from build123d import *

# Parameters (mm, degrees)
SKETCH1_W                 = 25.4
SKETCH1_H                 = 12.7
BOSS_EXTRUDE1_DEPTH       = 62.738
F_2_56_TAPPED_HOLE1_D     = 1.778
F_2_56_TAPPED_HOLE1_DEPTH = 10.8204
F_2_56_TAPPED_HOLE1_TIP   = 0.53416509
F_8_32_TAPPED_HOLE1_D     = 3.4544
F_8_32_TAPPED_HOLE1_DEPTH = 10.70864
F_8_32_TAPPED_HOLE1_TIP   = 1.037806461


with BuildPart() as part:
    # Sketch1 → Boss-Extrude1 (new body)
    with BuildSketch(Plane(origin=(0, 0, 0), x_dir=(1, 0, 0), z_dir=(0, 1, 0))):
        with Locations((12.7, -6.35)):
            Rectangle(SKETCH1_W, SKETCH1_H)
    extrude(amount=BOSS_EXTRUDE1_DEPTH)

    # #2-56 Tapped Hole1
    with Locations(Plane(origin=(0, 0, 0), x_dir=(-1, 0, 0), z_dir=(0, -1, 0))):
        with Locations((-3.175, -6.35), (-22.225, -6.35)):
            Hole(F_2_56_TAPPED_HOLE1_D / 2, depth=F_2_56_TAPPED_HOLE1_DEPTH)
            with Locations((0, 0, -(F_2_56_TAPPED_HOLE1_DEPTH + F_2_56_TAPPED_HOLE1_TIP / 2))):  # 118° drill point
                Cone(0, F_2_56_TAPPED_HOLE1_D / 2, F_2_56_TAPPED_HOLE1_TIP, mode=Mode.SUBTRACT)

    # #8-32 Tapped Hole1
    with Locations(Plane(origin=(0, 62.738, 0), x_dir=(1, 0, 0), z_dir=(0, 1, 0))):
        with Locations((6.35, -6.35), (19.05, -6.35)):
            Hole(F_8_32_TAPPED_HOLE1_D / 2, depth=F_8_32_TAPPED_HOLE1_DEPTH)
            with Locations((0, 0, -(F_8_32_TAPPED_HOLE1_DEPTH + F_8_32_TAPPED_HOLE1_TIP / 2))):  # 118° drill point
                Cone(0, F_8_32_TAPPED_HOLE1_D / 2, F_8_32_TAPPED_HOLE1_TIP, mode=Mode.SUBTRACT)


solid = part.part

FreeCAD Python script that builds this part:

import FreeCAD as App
import Part
import Sketcher

V = App.Vector
Q = App.Units.Quantity


def add_polygon(sketch, points):
    """Adds a closed chain of lines whose ends are joined by coincident constraints."""
    first, n = sketch.GeometryCount, len(points)
    for a, b in zip(points, points[1:] + points[:1]):
        sketch.addGeometry(Part.LineSegment(App.Vector(*a, 0), App.Vector(*b, 0)), False)
    for i in range(n):
        sketch.addConstraint(Sketcher.Constraint("Coincident", first + i, 2, first + (i + 1) % n, 1))

doc = App.newDocument("Part")
body = doc.addObject("PartDesign::Body", "Body")

# Sketch on XZ plane
sketch1 = body.newObject("Sketcher::SketchObject", "Sketch")
sketch1.AttachmentSupport = (doc.getObject("XZ_Plane"), [""])
sketch1.MapMode = "FlatFace"
add_polygon(sketch1, [(0, 0), (0, 13), (25, 13), (25, 0)])  # lines 0-3
sketch1.addConstraint([
    Sketcher.Constraint("Vertical", 0),
    Sketcher.Constraint("Horizontal", 1),
    Sketcher.Constraint("Vertical", 2),
    Sketcher.Constraint("Horizontal", 3),
    Sketcher.Constraint("Coincident", 3, 2, -1, 1),
    Sketcher.Constraint("DistanceX", 1, 1, 1, 2, Q("1 in")),
    Sketcher.Constraint("DistanceY", 0, 1, 0, 2, Q("0.5 in")),
])
pad1 = body.newObject("PartDesign::Pad", "Pad")
pad1.Profile = sketch1
pad1.Length = Q("2.47 in")
pad1.Reversed = True

# Sketch on XZ plane
sketch2 = body.newObject("Sketcher::SketchObject", "Sketch001")
sketch2.AttachmentSupport = (doc.getObject("XZ_Plane"), [""])
sketch2.MapMode = "FlatFace"
sketch2.addGeometry([
    Part.Circle(V(3.2, 6.3, 0), V(0, 0, 1), 0.9),
    Part.Circle(V(22.2, 6.3, 0), V(0, 0, 1), 0.9),
], False)
sketch2.addConstraint([
    Sketcher.Constraint("Equal", 0, 1),
    Sketcher.Constraint("Horizontal", 0, 3, 1, 3),
    Sketcher.Constraint("Diameter", 0, Q("0.07 in")),
    Sketcher.Constraint("DistanceY", -1, 1, 0, 3, Q("0.25 in")),
    Sketcher.Constraint("DistanceX", 0, 3, 1, 3, Q("0.75 in")),
    Sketcher.Constraint("DistanceX", -1, 1, 0, 3, Q("0.125 in")),
])
doc.recompute()
hole = body.newObject("PartDesign::Hole", "Hole")
hole.Profile = sketch2
hole.ThreadType = "None"
hole.Diameter = Q("0.07 in")
hole.DepthType = "Dimension"
hole.Depth = Q("0.426 in")
hole.DrillPoint = "Angled"
hole.DrillPointAngle = 118

# Sketch on XZ plane
sketch3 = body.newObject("Sketcher::SketchObject", "Sketch002")
sketch3.AttachmentSupport = (doc.getObject("XZ_Plane"), [""])
sketch3.MapMode = "FlatFace"
sketch3.AttachmentOffset = App.Placement(V(0, 0, -2.47 * 25.4), App.Rotation())
sketch3.addGeometry([
    Part.Circle(V(6.3, 6.3, 0), V(0, 0, 1), 1.7),
    Part.Circle(V(19.1, 6.3, 0), V(0, 0, 1), 1.7),
], False)
sketch3.addConstraint([
    Sketcher.Constraint("Equal", 0, 1),
    Sketcher.Constraint("Horizontal", 0, 3, 1, 3),
    Sketcher.Constraint("Diameter", 0, Q("0.136 in")),
    Sketcher.Constraint("DistanceX", 0, 3, 1, 3, Q("0.5 in")),
    Sketcher.Constraint("DistanceX", -1, 1, 0, 3, Q("0.25 in")),
    Sketcher.Constraint("DistanceY", -1, 1, 0, 3, Q("0.25 in")),
])
doc.recompute()
hole2 = body.newObject("PartDesign::Hole", "Hole001")
hole2.Profile = sketch3
hole2.ThreadType = "None"
hole2.Diameter = Q("0.136 in")
hole2.DepthType = "Dimension"
hole2.Depth = Q("0.4216 in")
hole2.DrillPoint = "Angled"
hole2.DrillPointAngle = 118
hole2.Reversed = True

doc.recompute()
